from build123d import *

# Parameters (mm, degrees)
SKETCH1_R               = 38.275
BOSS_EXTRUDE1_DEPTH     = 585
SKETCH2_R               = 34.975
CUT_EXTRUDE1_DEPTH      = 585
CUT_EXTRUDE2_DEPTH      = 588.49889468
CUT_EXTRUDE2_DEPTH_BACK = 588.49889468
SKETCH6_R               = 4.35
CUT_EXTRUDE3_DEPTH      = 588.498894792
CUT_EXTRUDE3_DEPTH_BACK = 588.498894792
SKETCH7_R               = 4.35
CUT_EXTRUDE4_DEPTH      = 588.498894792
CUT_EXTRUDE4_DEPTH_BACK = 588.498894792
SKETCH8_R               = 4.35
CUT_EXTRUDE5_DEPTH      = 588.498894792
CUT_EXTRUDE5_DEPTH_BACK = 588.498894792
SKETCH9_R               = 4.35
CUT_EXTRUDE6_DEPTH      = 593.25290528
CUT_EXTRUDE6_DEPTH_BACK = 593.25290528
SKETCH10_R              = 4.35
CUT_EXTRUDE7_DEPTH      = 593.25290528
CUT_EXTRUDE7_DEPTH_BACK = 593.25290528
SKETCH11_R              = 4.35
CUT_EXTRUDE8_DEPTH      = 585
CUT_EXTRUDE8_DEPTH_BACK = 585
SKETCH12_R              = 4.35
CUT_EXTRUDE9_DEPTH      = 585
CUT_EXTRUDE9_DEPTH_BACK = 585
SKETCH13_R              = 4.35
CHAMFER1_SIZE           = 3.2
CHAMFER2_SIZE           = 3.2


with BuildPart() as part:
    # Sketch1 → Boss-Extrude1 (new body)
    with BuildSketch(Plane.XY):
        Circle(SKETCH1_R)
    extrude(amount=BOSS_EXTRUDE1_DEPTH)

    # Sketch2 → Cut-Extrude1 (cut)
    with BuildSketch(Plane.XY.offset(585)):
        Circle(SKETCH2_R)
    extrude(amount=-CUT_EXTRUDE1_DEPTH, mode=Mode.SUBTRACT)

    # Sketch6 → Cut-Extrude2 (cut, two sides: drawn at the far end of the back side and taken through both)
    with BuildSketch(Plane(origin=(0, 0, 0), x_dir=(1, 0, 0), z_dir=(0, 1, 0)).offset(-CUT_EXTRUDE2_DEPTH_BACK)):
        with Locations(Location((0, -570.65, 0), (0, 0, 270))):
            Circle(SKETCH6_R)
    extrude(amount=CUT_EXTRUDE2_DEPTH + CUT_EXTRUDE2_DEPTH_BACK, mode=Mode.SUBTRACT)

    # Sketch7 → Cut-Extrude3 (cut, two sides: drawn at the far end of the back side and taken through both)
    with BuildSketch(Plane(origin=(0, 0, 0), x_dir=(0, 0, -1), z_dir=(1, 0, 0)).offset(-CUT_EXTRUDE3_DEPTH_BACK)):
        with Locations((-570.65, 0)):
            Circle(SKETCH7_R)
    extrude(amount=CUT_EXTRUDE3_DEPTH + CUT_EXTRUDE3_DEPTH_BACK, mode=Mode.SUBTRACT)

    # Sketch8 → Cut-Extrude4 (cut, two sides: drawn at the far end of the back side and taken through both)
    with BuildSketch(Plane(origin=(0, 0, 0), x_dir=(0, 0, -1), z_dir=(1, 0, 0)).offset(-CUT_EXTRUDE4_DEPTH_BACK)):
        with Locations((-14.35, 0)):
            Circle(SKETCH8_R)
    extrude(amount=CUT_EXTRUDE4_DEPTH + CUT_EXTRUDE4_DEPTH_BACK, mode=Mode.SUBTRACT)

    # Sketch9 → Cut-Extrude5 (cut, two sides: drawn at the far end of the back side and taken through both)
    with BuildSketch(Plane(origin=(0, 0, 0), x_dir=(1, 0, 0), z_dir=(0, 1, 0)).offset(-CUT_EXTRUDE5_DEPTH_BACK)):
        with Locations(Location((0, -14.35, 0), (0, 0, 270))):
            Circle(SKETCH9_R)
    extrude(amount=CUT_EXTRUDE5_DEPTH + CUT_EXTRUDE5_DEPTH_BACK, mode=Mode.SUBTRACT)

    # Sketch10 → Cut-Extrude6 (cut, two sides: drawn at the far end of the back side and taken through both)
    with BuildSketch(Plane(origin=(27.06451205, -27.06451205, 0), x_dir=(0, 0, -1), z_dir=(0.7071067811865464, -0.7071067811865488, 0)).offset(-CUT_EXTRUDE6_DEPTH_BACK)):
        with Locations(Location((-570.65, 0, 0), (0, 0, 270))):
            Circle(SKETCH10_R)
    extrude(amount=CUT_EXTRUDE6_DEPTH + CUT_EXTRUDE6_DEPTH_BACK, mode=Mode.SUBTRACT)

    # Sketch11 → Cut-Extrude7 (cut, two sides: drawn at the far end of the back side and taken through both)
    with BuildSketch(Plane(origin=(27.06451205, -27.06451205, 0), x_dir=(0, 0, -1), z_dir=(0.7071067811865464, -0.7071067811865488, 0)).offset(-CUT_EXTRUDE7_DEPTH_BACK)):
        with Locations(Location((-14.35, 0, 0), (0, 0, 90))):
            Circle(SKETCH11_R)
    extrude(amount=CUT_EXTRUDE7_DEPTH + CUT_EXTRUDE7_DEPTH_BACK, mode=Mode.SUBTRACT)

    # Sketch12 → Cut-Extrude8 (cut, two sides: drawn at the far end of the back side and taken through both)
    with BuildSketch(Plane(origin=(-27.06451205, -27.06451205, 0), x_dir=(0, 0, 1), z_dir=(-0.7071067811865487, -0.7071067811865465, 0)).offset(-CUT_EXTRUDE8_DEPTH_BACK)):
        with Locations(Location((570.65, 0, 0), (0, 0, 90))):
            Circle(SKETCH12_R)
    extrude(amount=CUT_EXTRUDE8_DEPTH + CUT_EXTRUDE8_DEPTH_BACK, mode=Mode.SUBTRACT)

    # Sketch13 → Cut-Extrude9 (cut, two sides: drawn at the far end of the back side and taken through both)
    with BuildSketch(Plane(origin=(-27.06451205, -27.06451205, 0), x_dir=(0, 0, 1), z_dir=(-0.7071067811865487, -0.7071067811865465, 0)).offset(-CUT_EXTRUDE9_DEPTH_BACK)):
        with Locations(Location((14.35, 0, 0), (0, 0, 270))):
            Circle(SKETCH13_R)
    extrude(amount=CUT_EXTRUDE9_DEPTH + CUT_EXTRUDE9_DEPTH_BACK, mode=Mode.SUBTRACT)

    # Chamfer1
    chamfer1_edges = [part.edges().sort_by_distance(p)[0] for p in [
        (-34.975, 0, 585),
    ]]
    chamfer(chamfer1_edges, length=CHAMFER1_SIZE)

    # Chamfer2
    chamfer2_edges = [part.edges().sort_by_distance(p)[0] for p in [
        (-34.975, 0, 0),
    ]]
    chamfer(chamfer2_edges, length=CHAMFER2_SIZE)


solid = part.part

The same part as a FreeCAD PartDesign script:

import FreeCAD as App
import Part
import Sketcher
from FreeCAD import Vector


def edges_at(feature, points):
    """Names of the edges that pass closest to the given points."""
    edges = feature.Shape.Edges
    near = lambda p: min(range(len(edges)), key=lambda i: edges[i].distToShape(Part.Vertex(*p))[0])
    return sorted({f"Edge{near(p) + 1}" for p in points})

doc = App.newDocument("Part")
body = doc.addObject("PartDesign::Body", "Body")

# Sketch on XY plane
sketch1 = doc.addObject("Sketcher::SketchObject", "Sketch")
body.addObject(sketch1)
sketch1.AttachmentSupport = (doc.XY_Plane, [""])
sketch1.MapMode = "FlatFace"
sketch1.addGeometry(Part.Circle(Vector(0, 0, 0), Vector(0, 0, 1), 38), False)
sketch1.addConstraint(Sketcher.Constraint("Coincident", 0, 3, -1, 1))
sketch1.addConstraint(Sketcher.Constraint("Diameter", 0, 76.55))
pad1 = doc.addObject("PartDesign::Pad", "Pad")
body.addObject(pad1)
pad1.Profile = sketch1
pad1.Length = 585

# Sketch on XY plane
sketch2 = doc.addObject("Sketcher::SketchObject", "Sketch001")
body.addObject(sketch2)
sketch2.AttachmentSupport = (doc.XY_Plane, [""])
sketch2.MapMode = "FlatFace"
sketch2.AttachmentOffset = App.Placement(Vector(0, 0, 585), App.Rotation())
sketch2.addGeometry(Part.Circle(Vector(0, 0, 0), Vector(0, 0, 1), 35), False)
sketch2.addConstraint(Sketcher.Constraint("Coincident", 0, 3, -1, 1))
sketch2.addConstraint(Sketcher.Constraint("Diameter", 0, 69.95))
pocket1 = doc.addObject("PartDesign::Pocket", "Pocket")
body.addObject(pocket1)
pocket1.Profile = sketch2
pocket1.Length = 585

# Sketch on XZ plane
sketch3 = doc.addObject("Sketcher::SketchObject", "Sketch002")
body.addObject(sketch3)
sketch3.AttachmentSupport = (doc.XZ_Plane, [""])
sketch3.MapMode = "FlatFace"
sketch3.addGeometry(Part.Circle(Vector(0, 570.6, 0), Vector(0, 0, 1), 4.3), False)
sketch3.addConstraint(Sketcher.Constraint("PointOnObject", 0, 3, -2))
sketch3.addConstraint(Sketcher.Constraint("Diameter", 0, 8.7))
sketch3.addConstraint(Sketcher.Constraint("DistanceY", -1, 1, 0, 3, 570.65))
pocket2 = doc.addObject("PartDesign::Pocket", "Pocket001")
body.addObject(pocket2)
pocket2.Profile = sketch3
pocket2.Type = "ThroughAll"
pocket2.Midplane = True

# Sketch on YZ plane
sketch4 = doc.addObject("Sketcher::SketchObject", "Sketch003")
body.addObject(sketch4)
sketch4.AttachmentSupport = (doc.YZ_Plane, [""])
sketch4.MapMode = "FlatFace"
sketch4.addGeometry(Part.Circle(Vector(0, 570.6, 0), Vector(0, 0, 1), 4.3), False)
sketch4.addConstraint(Sketcher.Constraint("PointOnObject", 0, 3, -2))
sketch4.addConstraint(Sketcher.Constraint("Diameter", 0, 8.7))
sketch4.addConstraint(Sketcher.Constraint("DistanceY", -1, 1, 0, 3, 570.65))
pocket3 = doc.addObject("PartDesign::Pocket", "Pocket002")
body.addObject(pocket3)
pocket3.Profile = sketch4
pocket3.Type = "ThroughAll"
pocket3.Midplane = True

# Sketch on YZ plane
sketch5 = doc.addObject("Sketcher::SketchObject", "Sketch004")
body.addObject(sketch5)
sketch5.AttachmentSupport = (doc.YZ_Plane, [""])
sketch5.MapMode = "FlatFace"
sketch5.addGeometry(Part.Circle(Vector(0, 14.3, 0), Vector(0, 0, 1), 4.3), False)
sketch5.addConstraint(Sketcher.Constraint("PointOnObject", 0, 3, -2))
sketch5.addConstraint(Sketcher.Constraint("Diameter", 0, 8.7))
sketch5.addConstraint(Sketcher.Constraint("DistanceY", -1, 1, 0, 3, 14.35))
pocket4 = doc.addObject("PartDesign::Pocket", "Pocket003")
body.addObject(pocket4)
pocket4.Profile = sketch5
pocket4.Type = "ThroughAll"
pocket4.Midplane = True

# Sketch on XZ plane
sketch6 = doc.addObject("Sketcher::SketchObject", "Sketch005")
body.addObject(sketch6)
sketch6.AttachmentSupport = (doc.XZ_Plane, [""])
sketch6.MapMode = "FlatFace"
sketch6.addGeometry(Part.Circle(Vector(0, 14.3, 0), Vector(0, 0, 1), 4.3), False)
sketch6.addConstraint(Sketcher.Constraint("PointOnObject", 0, 3, -2))
sketch6.addConstraint(Sketcher.Constraint("Diameter", 0, 8.7))
sketch6.addConstraint(Sketcher.Constraint("DistanceY", -1, 1, 0, 3, 14.35))
pocket5 = doc.addObject("PartDesign::Pocket", "Pocket004")
body.addObject(pocket5)
pocket5.Profile = sketch6
pocket5.Type = "ThroughAll"
pocket5.Midplane = True

# Sketch on an angled plane
sketch7 = doc.addObject("Sketcher::SketchObject", "Sketch006")
body.addObject(sketch7)
sketch7.Placement = App.Placement(Vector(27.064512, -27.064512, 0), App.Rotation(Vector(0, 0, -1), Vector(0.707106781, 0.707106781, 0), Vector(0.707106781, -0.707106781, 0), "ZXY"))
sketch7.addGeometry(Part.Circle(Vector(-570.6, 0, 0), Vector(0, 0, 1), 4.3), False)
sketch7.addConstraint(Sketcher.Constraint("PointOnObject", 0, 3, -1))
sketch7.addConstraint(Sketcher.Constraint("Diameter", 0, 8.7))
sketch7.addConstraint(Sketcher.Constraint("DistanceX", 0, 3, -1, 1, 570.65))
pocket6 = doc.addObject("PartDesign::Pocket", "Pocket005")
body.addObject(pocket6)
pocket6.Profile = sketch7
pocket6.Type = "ThroughAll"
pocket6.Midplane = True

# Sketch on an angled plane
sketch8 = doc.addObject("Sketcher::SketchObject", "Sketch007")
body.addObject(sketch8)
sketch8.Placement = App.Placement(Vector(27.064512, -27.064512, 0), App.Rotation(Vector(0, 0, -1), Vector(0.707106781, 0.707106781, 0), Vector(0.707106781, -0.707106781, 0), "ZXY"))
sketch8.addGeometry(Part.Circle(Vector(-14.3, 0, 0), Vector(0, 0, 1), 4.3), False)
sketch8.addConstraint(Sketcher.Constraint("PointOnObject", 0, 3, -1))
sketch8.addConstraint(Sketcher.Constraint("Diameter", 0, 8.7))
sketch8.addConstraint(Sketcher.Constraint("DistanceX", 0, 3, -1, 1, 14.35))
pocket7 = doc.addObject("PartDesign::Pocket", "Pocket006")
body.addObject(pocket7)
pocket7.Profile = sketch8
pocket7.Type = "ThroughAll"
pocket7.Midplane = True

# Sketch on an angled plane
sketch9 = doc.addObject("Sketcher::SketchObject", "Sketch008")
body.addObject(sketch9)
sketch9.Placement = App.Placement(Vector(-27.064512, -27.064512, 0), App.Rotation(Vector(0, 0, 1), Vector(-0.707106781, 0.707106781, 0), Vector(-0.707106781, -0.707106781, 0), "ZXY"))
sketch9.addGeometry(Part.Circle(Vector(570.6, 0, 0), Vector(0, 0, 1), 4.3), False)
sketch9.addConstraint(Sketcher.Constraint("PointOnObject", 0, 3, -1))
sketch9.addConstraint(Sketcher.Constraint("Diameter", 0, 8.7))
sketch9.addConstraint(Sketcher.Constraint("DistanceX", -1, 1, 0, 3, 570.65))
pocket8 = doc.addObject("PartDesign::Pocket", "Pocket007")
body.addObject(pocket8)
pocket8.Profile = sketch9
pocket8.Type = "ThroughAll"
pocket8.Midplane = True

# Sketch on an angled plane
sketch10 = doc.addObject("Sketcher::SketchObject", "Sketch009")
body.addObject(sketch10)
sketch10.Placement = App.Placement(Vector(-27.064512, -27.064512, 0), App.Rotation(Vector(0, 0, 1), Vector(-0.707106781, 0.707106781, 0), Vector(-0.707106781, -0.707106781, 0), "ZXY"))
sketch10.addGeometry(Part.Circle(Vector(14.3, 0, 0), Vector(0, 0, 1), 4.3), False)
sketch10.addConstraint(Sketcher.Constraint("PointOnObject", 0, 3, -1))
sketch10.addConstraint(Sketcher.Constraint("Diameter", 0, 8.7))
sketch10.addConstraint(Sketcher.Constraint("DistanceX", -1, 1, 0, 3, 14.35))
pocket9 = doc.addObject("PartDesign::Pocket", "Pocket008")
body.addObject(pocket9)
pocket9.Profile = sketch10
pocket9.Type = "ThroughAll"
pocket9.Midplane = True
doc.recompute()

chamfer = doc.addObject("PartDesign::Chamfer", "Chamfer")
body.addObject(chamfer)
chamfer.Base = (pocket9, edges_at(pocket9, [(-34.975, 0, 585)]))
chamfer.Size = 3.2
doc.recompute()

chamfer2 = doc.addObject("PartDesign::Chamfer", "Chamfer001")
body.addObject(chamfer2)
chamfer2.Base = (chamfer, edges_at(chamfer, [(-34.975, 0, 0)]))
chamfer2.Size = 3.2

doc.recompute()
